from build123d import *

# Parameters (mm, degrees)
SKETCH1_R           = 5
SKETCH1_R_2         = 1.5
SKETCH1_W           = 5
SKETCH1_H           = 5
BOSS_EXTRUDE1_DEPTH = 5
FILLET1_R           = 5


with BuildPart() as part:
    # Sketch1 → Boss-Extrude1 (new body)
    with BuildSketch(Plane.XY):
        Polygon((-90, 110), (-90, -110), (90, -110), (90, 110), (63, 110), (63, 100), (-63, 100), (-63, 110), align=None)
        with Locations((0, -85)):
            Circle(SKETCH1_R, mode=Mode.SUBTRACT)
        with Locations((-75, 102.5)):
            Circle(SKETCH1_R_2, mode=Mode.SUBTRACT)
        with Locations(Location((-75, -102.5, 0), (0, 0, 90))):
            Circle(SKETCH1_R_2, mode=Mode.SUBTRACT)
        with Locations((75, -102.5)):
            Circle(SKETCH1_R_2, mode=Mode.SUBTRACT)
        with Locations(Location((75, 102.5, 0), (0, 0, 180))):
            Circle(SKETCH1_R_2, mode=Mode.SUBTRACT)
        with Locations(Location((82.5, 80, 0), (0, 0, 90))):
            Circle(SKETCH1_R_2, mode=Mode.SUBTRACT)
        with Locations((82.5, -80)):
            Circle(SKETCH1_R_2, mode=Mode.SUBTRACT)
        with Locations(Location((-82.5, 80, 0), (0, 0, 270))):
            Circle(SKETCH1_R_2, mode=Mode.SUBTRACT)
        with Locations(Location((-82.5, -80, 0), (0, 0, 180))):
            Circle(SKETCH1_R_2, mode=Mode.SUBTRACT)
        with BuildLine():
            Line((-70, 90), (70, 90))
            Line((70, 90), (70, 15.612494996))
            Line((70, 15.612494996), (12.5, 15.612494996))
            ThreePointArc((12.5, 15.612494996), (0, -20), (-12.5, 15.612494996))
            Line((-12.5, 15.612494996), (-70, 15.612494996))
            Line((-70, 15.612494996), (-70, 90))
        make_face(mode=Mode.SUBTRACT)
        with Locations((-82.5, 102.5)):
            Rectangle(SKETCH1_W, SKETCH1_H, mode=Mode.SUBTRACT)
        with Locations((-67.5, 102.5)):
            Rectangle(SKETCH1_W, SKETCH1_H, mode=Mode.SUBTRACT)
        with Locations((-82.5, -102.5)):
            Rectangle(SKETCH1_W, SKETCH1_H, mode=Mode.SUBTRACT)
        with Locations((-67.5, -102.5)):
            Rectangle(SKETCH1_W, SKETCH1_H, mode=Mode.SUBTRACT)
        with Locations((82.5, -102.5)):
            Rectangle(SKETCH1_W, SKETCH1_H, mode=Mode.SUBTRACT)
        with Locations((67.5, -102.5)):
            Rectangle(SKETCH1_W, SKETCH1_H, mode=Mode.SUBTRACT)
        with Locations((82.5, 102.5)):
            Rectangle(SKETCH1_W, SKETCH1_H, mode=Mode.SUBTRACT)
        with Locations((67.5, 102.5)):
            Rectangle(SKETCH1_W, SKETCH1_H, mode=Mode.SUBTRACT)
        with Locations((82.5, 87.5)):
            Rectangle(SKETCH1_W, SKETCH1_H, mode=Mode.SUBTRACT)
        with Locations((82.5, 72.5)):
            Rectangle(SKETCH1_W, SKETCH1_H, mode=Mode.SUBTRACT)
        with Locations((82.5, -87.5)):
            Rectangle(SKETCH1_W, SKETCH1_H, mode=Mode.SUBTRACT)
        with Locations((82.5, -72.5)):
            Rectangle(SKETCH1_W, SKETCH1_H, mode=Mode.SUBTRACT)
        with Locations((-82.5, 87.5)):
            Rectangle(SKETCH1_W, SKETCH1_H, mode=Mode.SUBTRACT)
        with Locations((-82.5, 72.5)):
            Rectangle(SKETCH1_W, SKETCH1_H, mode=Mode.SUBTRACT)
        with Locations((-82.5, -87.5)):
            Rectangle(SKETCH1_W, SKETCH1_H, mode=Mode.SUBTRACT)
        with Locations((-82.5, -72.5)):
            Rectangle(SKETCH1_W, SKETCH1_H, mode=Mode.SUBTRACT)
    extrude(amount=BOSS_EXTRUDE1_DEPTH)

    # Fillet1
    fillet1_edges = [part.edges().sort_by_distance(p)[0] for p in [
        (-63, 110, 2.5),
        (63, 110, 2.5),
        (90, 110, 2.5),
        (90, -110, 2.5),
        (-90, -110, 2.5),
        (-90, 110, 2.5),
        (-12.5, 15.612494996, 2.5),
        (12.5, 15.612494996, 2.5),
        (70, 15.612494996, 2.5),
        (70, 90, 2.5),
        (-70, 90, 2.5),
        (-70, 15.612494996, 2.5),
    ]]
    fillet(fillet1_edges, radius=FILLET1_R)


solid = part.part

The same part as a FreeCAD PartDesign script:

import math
import FreeCAD as App
import Part
import Sketcher


def edges_at(feature, points):
    """Names of the edges that pass closest to the given points."""
    edges = feature.Shape.Edges
    near = lambda p: min(range(len(edges)), key=lambda i: edges[i].distToShape(Part.Vertex(*p))[0])
    return sorted({f"Edge{near(p) + 1}" for p in points})


def add_polygon(sketch, points):
    """Adds a closed chain of lines whose ends are joined by coincident constraints."""
    first, n = sketch.GeometryCount, len(points)
    for a, b in zip(points, points[1:] + points[:1]):
        sketch.addGeometry(Part.LineSegment(App.Vector(*a, 0), App.Vector(*b, 0)), False)
    for i in range(n):
        sketch.addConstraint(Sketcher.Constraint("Coincident", first + i, 2, first + (i + 1) % n, 1))

doc = App.newDocument("Part")
params = doc.addObject("Spreadsheet::Sheet", "Params")
for row, (alias, value) in enumerate([
    ("sketch1_diameter", "3 mm"),
    ("sketch1_diameter2", "10 mm"),
    ("sketch1_radius", "20 mm"),
    ("sketch1_width", "180 mm"),
    ("sketch1_width2", "27 mm"),
    ("pad1_length", "5 mm"),
    ("fillet_radius", "5 mm"),
], start=1):
    params.set(f"A{row}", alias)
    params.set(f"B{row}", "=" + value)
    params.setAlias(f"B{row}", alias)

body = doc.addObject("PartDesign::Body", "Body")

# Sketch on XY plane
sketch1 = body.newObject("Sketcher::SketchObject", "Sketch")
sketch1.AttachmentSupport = (doc.getObject("XY_Plane"), [""])
sketch1.MapMode = "FlatFace"
add_polygon(sketch1, [(-90, 110), (-90, -110), (90, -110), (90, 110), (63, 110), (63, 100), (-63, 100), (-63, 110)])  # lines 0-7
add_polygon(sketch1, [(-80, -105), (-85, -105), (-85, -100), (-80, -100)])  # lines 8-11
sketch1.addGeometry(Part.Circle(App.Vector(-75, -102.5, 0), App.Vector(0, 0, 1), 1.5), False)  # 12
add_polygon(sketch1, [(-65, -105), (-70, -105), (-70, -100), (-65, -100)])  # lines 13-16
add_polygon(sketch1, [(-80, -90), (-85, -90), (-85, -85), (-80, -85)])  # lines 17-20
sketch1.addGeometry(Part.Circle(App.Vector(-82.5, -80, 0), App.Vector(0, 0, 1), 1.5), False)  # 21
add_polygon(sketch1, [(-80, -75), (-85, -75), (-85, -70), (-80, -70)])  # lines 22-25
sketch1.addGeometry(Part.Circle(App.Vector(0, -85, 0), App.Vector(0, 0, 1), 5), False)  # 26
add_polygon(sketch1, [(70, -105), (65, -105), (65, -100), (70, -100)])  # lines 27-30
sketch1.addGeometry(Part.Circle(App.Vector(75, -102.5, 0), App.Vector(0, 0, 1), 1.5), False)  # 31
add_polygon(sketch1, [(85, -105), (80, -105), (80, -100), (85, -100)])  # lines 32-35
add_polygon(sketch1, [(85, -90), (80, -90), (80, -85), (85, -85)])  # lines 36-39
sketch1.addGeometry(Part.Circle(App.Vector(82.5, -80, 0), App.Vector(0, 0, 1), 1.5), False)  # 40
add_polygon(sketch1, [(85, -75), (80, -75), (80, -70), (85, -70)])  # lines 41-44
add_polygon(sketch1, [(-80, 70), (-85, 70), (-85, 75), (-80, 75)])  # lines 45-48
sketch1.addGeometry(Part.Circle(App.Vector(-82.5, 80, 0), App.Vector(0, 0, 1), 1.5), False)  # 49
add_polygon(sketch1, [(-80, 85), (-85, 85), (-85, 90), (-80, 90)])  # lines 50-53
add_polygon(sketch1, [(-80, 100), (-85, 100), (-85, 105), (-80, 105)])  # lines 54-57
sketch1.addGeometry(Part.Circle(App.Vector(-75, 102.5, 0), App.Vector(0, 0, 1), 1.5), False)  # 58
add_polygon(sketch1, [(-65, 100), (-70, 100), (-70, 105), (-65, 105)])  # lines 59-62
sketch1.addGeometry(Part.LineSegment(App.Vector(-70, 15.6, 0), App.Vector(-70, 90, 0)), False)  # 63
sketch1.addGeometry(Part.LineSegment(App.Vector(-70, 90, 0), App.Vector(70, 90, 0)), False)  # 64
sketch1.addGeometry(Part.LineSegment(App.Vector(70, 90, 0), App.Vector(70, 15.6, 0)), False)  # 65
sketch1.addGeometry(Part.LineSegment(App.Vector(70, 15.6, 0), App.Vector(12.5, 15.6, 0)), False)  # 66
sketch1.addGeometry(Part.ArcOfCircle(Part.Circle(App.Vector(0, 0, 0), App.Vector(0, 0, 1), 20), math.radians(129), math.radians(411)), False)  # 67
sketch1.addGeometry(Part.LineSegment(App.Vector(-12.5, 15.6, 0), App.Vector(-70, 15.6, 0)), False)  # 68
add_polygon(sketch1, [(85, 70), (80, 70), (80, 75), (85, 75)])  # lines 69-72
sketch1.addGeometry(Part.Circle(App.Vector(82.5, 80, 0), App.Vector(0, 0, 1), 1.5), False)  # 73
add_polygon(sketch1, [(85, 85), (80, 85), (80, 90), (85, 90)])  # lines 74-77
add_polygon(sketch1, [(70, 100), (65, 100), (65, 105), (70, 105)])  # lines 78-81
sketch1.addGeometry(Part.Circle(App.Vector(75, 102.5, 0), App.Vector(0, 0, 1), 1.5), False)  # 82
add_polygon(sketch1, [(85, 100), (80, 100), (80, 105), (85, 105)])  # lines 83-86
sketch1.addConstraint(Sketcher.Constraint("Coincident", 63, 2, 64, 1))
sketch1.addConstraint(Sketcher.Constraint("Coincident", 64, 2, 65, 1))
sketch1.addConstraint(Sketcher.Constraint("Coincident", 65, 2, 66, 1))
sketch1.addConstraint(Sketcher.Constraint("Coincident", 66, 2, 67, 2))
sketch1.addConstraint(Sketcher.Constraint("Coincident", 67, 1, 68, 1))
sketch1.addConstraint(Sketcher.Constraint("Coincident", 68, 2, 63, 1))
sketch1.addConstraint(Sketcher.Constraint("Vertical", 0))
sketch1.addConstraint(Sketcher.Constraint("Horizontal", 1))
sketch1.addConstraint(Sketcher.Constraint("Vertical", 2))
sketch1.addConstraint(Sketcher.Constraint("Horizontal", 3))
sketch1.addConstraint(Sketcher.Constraint("Vertical", 4))
sketch1.addConstraint(Sketcher.Constraint("Horizontal", 5))
sketch1.addConstraint(Sketcher.Constraint("Vertical", 6))
sketch1.addConstraint(Sketcher.Constraint("Horizontal", 7))
sketch1.addConstraint(Sketcher.Constraint("Horizontal", 8))
sketch1.addConstraint(Sketcher.Constraint("Vertical", 9))
sketch1.addConstraint(Sketcher.Constraint("Horizontal", 10))
sketch1.addConstraint(Sketcher.Constraint("Vertical", 11))
sketch1.addConstraint(Sketcher.Constraint("Horizontal", 13))
sketch1.addConstraint(Sketcher.Constraint("Vertical", 14))
sketch1.addConstraint(Sketcher.Constraint("Horizontal", 15))
sketch1.addConstraint(Sketcher.Constraint("Vertical", 16))
sketch1.addConstraint(Sketcher.Constraint("Horizontal", 17))
sketch1.addConstraint(Sketcher.Constraint("Vertical", 18))
sketch1.addConstraint(Sketcher.Constraint("Horizontal", 19))
sketch1.addConstraint(Sketcher.Constraint("Vertical", 20))
sketch1.addConstraint(Sketcher.Constraint("Horizontal", 22))
sketch1.addConstraint(Sketcher.Constraint("Vertical", 23))
sketch1.addConstraint(Sketcher.Constraint("Horizontal", 24))
sketch1.addConstraint(Sketcher.Constraint("Vertical", 25))
sketch1.addConstraint(Sketcher.Constraint("Horizontal", 27))
sketch1.addConstraint(Sketcher.Constraint("Vertical", 28))
sketch1.addConstraint(Sketcher.Constraint("Horizontal", 29))
sketch1.addConstraint(Sketcher.Constraint("Vertical", 30))
sketch1.addConstraint(Sketcher.Constraint("Horizontal", 32))
sketch1.addConstraint(Sketcher.Constraint("Vertical", 33))
sketch1.addConstraint(Sketcher.Constraint("Horizontal", 34))
sketch1.addConstraint(Sketcher.Constraint("Vertical", 35))
sketch1.addConstraint(Sketcher.Constraint("Horizontal", 36))
sketch1.addConstraint(Sketcher.Constraint("Vertical", 37))
sketch1.addConstraint(Sketcher.Constraint("Horizontal", 38))
sketch1.addConstraint(Sketcher.Constraint("Vertical", 39))
sketch1.addConstraint(Sketcher.Constraint("Horizontal", 41))
sketch1.addConstraint(Sketcher.Constraint("Vertical", 42))
sketch1.addConstraint(Sketcher.Constraint("Horizontal", 43))
sketch1.addConstraint(Sketcher.Constraint("Vertical", 44))
sketch1.addConstraint(Sketcher.Constraint("Horizontal", 45))
sketch1.addConstraint(Sketcher.Constraint("Vertical", 46))
sketch1.addConstraint(Sketcher.Constraint("Horizontal", 47))
sketch1.addConstraint(Sketcher.Constraint("Vertical", 48))
sketch1.addConstraint(Sketcher.Constraint("Horizontal", 50))
sketch1.addConstraint(Sketcher.Constraint("Vertical", 51))
sketch1.addConstraint(Sketcher.Constraint("Horizontal", 52))
sketch1.addConstraint(Sketcher.Constraint("Vertical", 53))
sketch1.addConstraint(Sketcher.Constraint("Horizontal", 54))
sketch1.addConstraint(Sketcher.Constraint("Vertical", 55))
sketch1.addConstraint(Sketcher.Constraint("Horizontal", 56))
sketch1.addConstraint(Sketcher.Constraint("Vertical", 57))
sketch1.addConstraint(Sketcher.Constraint("Horizontal", 59))
sketch1.addConstraint(Sketcher.Constraint("Vertical", 60))
sketch1.addConstraint(Sketcher.Constraint("Horizontal", 61))
sketch1.addConstraint(Sketcher.Constraint("Vertical", 62))
sketch1.addConstraint(Sketcher.Constraint("Vertical", 63))
sketch1.addConstraint(Sketcher.Constraint("Horizontal", 64))
sketch1.addConstraint(Sketcher.Constraint("Vertical", 65))
sketch1.addConstraint(Sketcher.Constraint("Horizontal", 66))
sketch1.addConstraint(Sketcher.Constraint("Horizontal", 68))
sketch1.addConstraint(Sketcher.Constraint("Horizontal", 69))
sketch1.addConstraint(Sketcher.Constraint("Vertical", 70))
sketch1.addConstraint(Sketcher.Constraint("Horizontal", 71))
sketch1.addConstraint(Sketcher.Constraint("Vertical", 72))
sketch1.addConstraint(Sketcher.Constraint("Horizontal", 74))
sketch1.addConstraint(Sketcher.Constraint("Vertical", 75))
sketch1.addConstraint(Sketcher.Constraint("Horizontal", 76))
sketch1.addConstraint(Sketcher.Constraint("Vertical", 77))
sketch1.addConstraint(Sketcher.Constraint("Horizontal", 78))
sketch1.addConstraint(Sketcher.Constraint("Vertical", 79))
sketch1.addConstraint(Sketcher.Constraint("Horizontal", 80))
sketch1.addConstraint(Sketcher.Constraint("Vertical", 81))
sketch1.addConstraint(Sketcher.Constraint("Horizontal", 83))
sketch1.addConstraint(Sketcher.Constraint("Vertical", 84))
sketch1.addConstraint(Sketcher.Constraint("Horizontal", 85))
sketch1.addConstraint(Sketcher.Constraint("Vertical", 86))
sketch1.addConstraint(Sketcher.Constraint("Coincident", 67, 3, -1, 1))
sketch1.addConstraint(Sketcher.Constraint("Equal", 12, 21))
sketch1.addConstraint(Sketcher.Constraint("Equal", 21, 31))
sketch1.addConstraint(Sketcher.Constraint("Equal", 31, 40))
sketch1.addConstraint(Sketcher.Constraint("Equal", 40, 49))
sketch1.addConstraint(Sketcher.Constraint("Equal", 49, 58))
sketch1.addConstraint(Sketcher.Constraint("Equal", 58, 73))
sketch1.addConstraint(Sketcher.Constraint("Equal", 73, 82))
sketch1.addConstraint(Sketcher.Constraint("Symmetric", 40, 3, 49, 3, -1, 1))
sketch1.addConstraint(Sketcher.Constraint("Symmetric", 31, 3, 58, 3, -1, 1))
sketch1.addConstraint(Sketcher.Constraint("Symmetric", 21, 3, 73, 3, -1, 1))
sketch1.addConstraint(Sketcher.Constraint("Symmetric", 12, 3, 82, 3, -1, 1))
sketch1.addConstraint(Sketcher.Constraint("Symmetric", 0, 2, 2, 2, -1, 1))
sketch1.addConstraint(Sketcher.Constraint("Symmetric", 43, 2, 45, 2, -1, 1))
sketch1.addConstraint(Sketcher.Constraint("Symmetric", 41, 2, 47, 2, -1, 1))
sketch1.addConstraint(Sketcher.Constraint("Symmetric", 38, 2, 50, 2, -1, 1))
sketch1.addConstraint(Sketcher.Constraint("Symmetric", 36, 2, 52, 2, -1, 1))
sketch1.addConstraint(Sketcher.Constraint("Symmetric", 34, 2, 54, 2, -1, 1))
sketch1.addConstraint(Sketcher.Constraint("Symmetric", 32, 2, 56, 2, -1, 1))
sketch1.addConstraint(Sketcher.Constraint("Symmetric", 29, 2, 59, 2, -1, 1))
sketch1.addConstraint(Sketcher.Constraint("Symmetric", 27, 2, 61, 2, -1, 1))
sketch1.addConstraint(Sketcher.Constraint("Symmetric", 24, 2, 69, 2, -1, 1))
sketch1.addConstraint(Sketcher.Constraint("Symmetric", 22, 2, 71, 2, -1, 1))
sketch1.addConstraint(Sketcher.Constraint("Symmetric", 19, 2, 74, 2, -1, 1))
sketch1.addConstraint(Sketcher.Constraint("Symmetric", 17, 2, 76, 2, -1, 1))
sketch1.addConstraint(Sketcher.Constraint("Symmetric", 15, 2, 78, 2, -1, 1))
sketch1.addConstraint(Sketcher.Constraint("Symmetric", 13, 2, 80, 2, -1, 1))
sketch1.addConstraint(Sketcher.Constraint("Symmetric", 10, 2, 83, 2, -1, 1))
sketch1.addConstraint(Sketcher.Constraint("Symmetric", 8, 2, 85, 2, -1, 1))
sketch1.addConstraint(Sketcher.Constraint("Symmetric", 12, 3, 31, 3, -2))
sketch1.addConstraint(Sketcher.Constraint("Symmetric", 21, 3, 40, 3, -2))
sketch1.addConstraint(Sketcher.Constraint("Symmetric", 3, 2, 6, 2, -2))
sketch1.addConstraint(Sketcher.Constraint("Symmetric", 16, 2, 27, 2, -2))
sketch1.addConstraint(Sketcher.Constraint("Symmetric", 14, 2, 29, 2, -2))
sketch1.addConstraint(Sketcher.Constraint("Symmetric", 11, 2, 32, 2, -2))
sketch1.addConstraint(Sketcher.Constraint("Symmetric", 9, 2, 34, 2, -2))
sketch1.addConstraint(Sketcher.Constraint("Symmetric", 20, 2, 36, 2, -2))
sketch1.addConstraint(Sketcher.Constraint("Symmetric", 18, 2, 38, 2, -2))
sketch1.addConstraint(Sketcher.Constraint("Symmetric", 25, 2, 41, 2, -2))
sketch1.addConstraint(Sketcher.Constraint("Symmetric", 23, 2, 43, 2, -2))
sketch1.addConstraint(Sketcher.Constraint("Symmetric", 65, 2, 68, 2, -2))
sketch1.addConstraint(Sketcher.Constraint("PointOnObject", 26, 3, -2))
sketch1.addConstraint(Sketcher.Constraint("Horizontal", 11, 2, 13, 2))
sketch1.addConstraint(Sketcher.Constraint("Horizontal", 10, 2, 14, 2))
sketch1.addConstraint(Sketcher.Constraint("Horizontal", 26, 3, 18, 2))
sketch1.addConstraint(Sketcher.Constraint("Horizontal", 5, 2, 54, 2))
sketch1.addConstraint(Sketcher.Constraint("Horizontal", 52, 2, 63, 2))
sketch1.addConstraint(Sketcher.Constraint("Vertical", 9, 2, 17, 2))
sketch1.addConstraint(Sketcher.Constraint("Vertical", 11, 2, 19, 2))
sketch1.addConstraint(Sketcher.Constraint("Vertical", 18, 2, 22, 2))
sketch1.addConstraint(Sketcher.Constraint("Vertical", 20, 2, 24, 2))
sketch1.addConstraint(Sketcher.Constraint("Vertical", 60, 2, 63, 2))
sketch1.addConstraint(Sketcher.Constraint("Equal", 10, 13))
sketch1.addConstraint(Sketcher.Constraint("Equal", 85, 9))
sketch1.addConstraint(Sketcher.Constraint("Equal", 16, 18))
sketch1.addConstraint(Sketcher.Constraint("Equal", 20, 23))
sketch1.addConstraint(Sketcher.Constraint("Diameter", 12, 3.0))
sketch1.addConstraint(Sketcher.Constraint("Diameter", 26, 10.0))
sketch1.addConstraint(Sketcher.Constraint("Radius", 67, 20.0))
sketch1.addConstraint(Sketcher.Constraint("DistanceX", 1, 1, 1, 2, 180.0))
sketch1.addConstraint(Sketcher.Constraint("DistanceX", 3, 2, 3, 1, 27.0))
sketch1.addConstraint(Sketcher.Constraint("DistanceX", 8, 2, 8, 1, 5.0))
sketch1.addConstraint(Sketcher.Constraint("DistanceX", 64, 1, 64, 2, 140.0))
sketch1.addConstraint(Sketcher.Constraint("DistanceY", 0, 2, 0, 1, 220.0))
sketch1.addConstraint(Sketcher.Constraint("DistanceY", 4, 2, 4, 1, 10.0))
sketch1.addConstraint(Sketcher.Constraint("DistanceX", 66, 2, 66, 1, 57.5))
sketch1.addConstraint(Sketcher.Constraint("DistanceX", 12, 3, -1, 1, 75.0))
sketch1.addConstraint(Sketcher.Constraint("DistanceY", 21, 3, -1, 1, 80.0))
sketch1.addConstraint(Sketcher.Constraint("DistanceY", 26, 3, -1, 1, 85.0))
sketch1.addConstraint(Sketcher.Constraint("DistanceX", 8, 2, -1, 1, 85.0))
sketch1.addConstraint(Sketcher.Constraint("DistanceY", 22, 2, -1, 1, 75.0))
sketch1.addConstraint(Sketcher.Constraint("DistanceY", 12, 3, -1, 1, 102.5))
sketch1.addConstraint(Sketcher.Constraint("DistanceX", 21, 3, -1, 1, 82.5))
sketch1.setExpression("Constraints[211]", "Params.sketch1_diameter")
sketch1.setExpression("Constraints[212]", "Params.sketch1_diameter2")
sketch1.setExpression("Constraints[213]", "Params.sketch1_radius")
sketch1.setExpression("Constraints[214]", "Params.sketch1_width")
sketch1.setExpression("Constraints[215]", "Params.sketch1_width2")
pad1 = body.newObject("PartDesign::Pad", "Pad")
pad1.Profile = sketch1
pad1.setExpression("Length", "Params.pad1_length")
doc.recompute()

fillet = body.newObject("PartDesign::Fillet", "Fillet")
fillet.Base = (pad1, edges_at(pad1, [
    (-63, 110, 2.5),
    (63, 110, 2.5),
    (90, 110, 2.5),
    (90, -110, 2.5),
    (-90, -110, 2.5),
    (-90, 110, 2.5),
    (-12.5, 15.612, 2.5),
    (12.5, 15.612, 2.5),
    (70, 15.612, 2.5),
    (70, 90, 2.5),
    (-70, 90, 2.5),
    (-70, 15.612, 2.5),
]))
fillet.setExpression("Radius", "Params.fillet_radius")

doc.recompute()
